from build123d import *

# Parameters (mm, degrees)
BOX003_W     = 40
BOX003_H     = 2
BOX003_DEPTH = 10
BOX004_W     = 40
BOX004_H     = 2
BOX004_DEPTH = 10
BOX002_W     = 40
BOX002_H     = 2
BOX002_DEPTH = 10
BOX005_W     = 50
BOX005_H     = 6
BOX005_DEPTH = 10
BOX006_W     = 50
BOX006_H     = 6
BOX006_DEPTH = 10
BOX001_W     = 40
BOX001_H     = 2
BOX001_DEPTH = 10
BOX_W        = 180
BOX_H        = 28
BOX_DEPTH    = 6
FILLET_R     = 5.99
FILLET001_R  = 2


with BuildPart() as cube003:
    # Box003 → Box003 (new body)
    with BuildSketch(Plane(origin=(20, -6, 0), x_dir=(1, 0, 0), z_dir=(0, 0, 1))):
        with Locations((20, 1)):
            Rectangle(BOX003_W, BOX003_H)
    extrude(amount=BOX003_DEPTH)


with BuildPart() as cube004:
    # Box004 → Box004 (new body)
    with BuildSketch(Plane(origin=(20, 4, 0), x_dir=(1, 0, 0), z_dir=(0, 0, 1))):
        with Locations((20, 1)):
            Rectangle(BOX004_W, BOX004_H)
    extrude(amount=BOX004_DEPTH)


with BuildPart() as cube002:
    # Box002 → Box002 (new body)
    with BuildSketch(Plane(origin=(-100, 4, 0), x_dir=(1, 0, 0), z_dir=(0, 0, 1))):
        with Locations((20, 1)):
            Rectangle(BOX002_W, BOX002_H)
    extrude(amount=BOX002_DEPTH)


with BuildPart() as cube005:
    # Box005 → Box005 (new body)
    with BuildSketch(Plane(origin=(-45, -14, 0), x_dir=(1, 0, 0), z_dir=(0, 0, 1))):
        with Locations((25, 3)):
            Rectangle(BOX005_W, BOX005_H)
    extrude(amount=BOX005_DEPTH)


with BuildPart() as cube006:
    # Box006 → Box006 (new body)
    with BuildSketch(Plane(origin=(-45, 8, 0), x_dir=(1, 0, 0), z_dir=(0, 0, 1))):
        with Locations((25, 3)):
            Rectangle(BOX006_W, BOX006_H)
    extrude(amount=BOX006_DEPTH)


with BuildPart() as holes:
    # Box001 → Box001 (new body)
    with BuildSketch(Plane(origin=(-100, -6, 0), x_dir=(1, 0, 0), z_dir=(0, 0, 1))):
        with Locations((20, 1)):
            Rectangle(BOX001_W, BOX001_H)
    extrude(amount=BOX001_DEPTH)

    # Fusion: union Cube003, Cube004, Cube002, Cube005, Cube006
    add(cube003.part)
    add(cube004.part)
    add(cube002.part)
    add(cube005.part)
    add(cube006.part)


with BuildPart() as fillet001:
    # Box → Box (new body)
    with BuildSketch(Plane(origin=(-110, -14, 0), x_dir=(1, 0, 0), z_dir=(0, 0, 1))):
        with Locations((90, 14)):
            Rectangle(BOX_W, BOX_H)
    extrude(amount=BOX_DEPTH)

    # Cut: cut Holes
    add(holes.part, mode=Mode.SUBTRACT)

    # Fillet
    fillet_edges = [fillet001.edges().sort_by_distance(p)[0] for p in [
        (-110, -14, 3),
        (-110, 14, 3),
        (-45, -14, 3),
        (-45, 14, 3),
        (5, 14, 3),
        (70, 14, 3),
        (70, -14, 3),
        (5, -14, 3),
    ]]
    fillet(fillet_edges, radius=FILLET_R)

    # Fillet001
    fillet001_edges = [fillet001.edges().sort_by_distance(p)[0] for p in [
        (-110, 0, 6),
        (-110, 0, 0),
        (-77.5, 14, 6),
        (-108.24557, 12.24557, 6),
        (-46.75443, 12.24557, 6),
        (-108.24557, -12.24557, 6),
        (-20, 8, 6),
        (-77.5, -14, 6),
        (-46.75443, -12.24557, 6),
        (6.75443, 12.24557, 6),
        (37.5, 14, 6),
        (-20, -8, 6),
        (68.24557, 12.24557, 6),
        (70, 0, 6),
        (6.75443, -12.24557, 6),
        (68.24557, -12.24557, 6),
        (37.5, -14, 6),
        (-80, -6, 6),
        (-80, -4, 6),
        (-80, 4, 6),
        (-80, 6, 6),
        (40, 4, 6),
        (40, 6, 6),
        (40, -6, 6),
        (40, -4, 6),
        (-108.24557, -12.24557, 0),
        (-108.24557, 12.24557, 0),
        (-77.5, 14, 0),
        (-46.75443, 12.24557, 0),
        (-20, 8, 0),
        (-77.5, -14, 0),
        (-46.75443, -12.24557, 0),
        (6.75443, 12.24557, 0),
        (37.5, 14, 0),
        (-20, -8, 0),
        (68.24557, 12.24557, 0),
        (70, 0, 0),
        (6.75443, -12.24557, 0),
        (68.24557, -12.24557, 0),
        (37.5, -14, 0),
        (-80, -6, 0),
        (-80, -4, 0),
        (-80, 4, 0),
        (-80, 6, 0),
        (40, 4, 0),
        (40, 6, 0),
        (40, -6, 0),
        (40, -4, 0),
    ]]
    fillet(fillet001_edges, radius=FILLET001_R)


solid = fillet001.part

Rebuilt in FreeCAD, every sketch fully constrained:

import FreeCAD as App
import Part
import Sketcher

V = App.Vector


def edges_at(feature, points):
    """Names of the edges that pass closest to the given points."""
    edges = feature.Shape.Edges
    near = lambda p: min(range(len(edges)), key=lambda i: edges[i].distToShape(Part.Vertex(*p))[0])
    return sorted({f"Edge{near(p) + 1}" for p in points})


def add_polygon(sketch, points):
    """Adds a closed chain of lines whose ends are joined by coincident constraints."""
    first, n = sketch.GeometryCount, len(points)
    for a, b in zip(points, points[1:] + points[:1]):
        sketch.addGeometry(Part.LineSegment(App.Vector(*a, 0), App.Vector(*b, 0)), False)
    for i in range(n):
        sketch.addConstraint(Sketcher.Constraint("Coincident", first + i, 2, first + (i + 1) % n, 1))

doc = App.newDocument("Part")
body = doc.addObject("PartDesign::Body", "Body")

# Sketch on XY plane
sketch1 = body.newObject("Sketcher::SketchObject", "Sketch")
sketch1.AttachmentSupport = (doc.getObject("XY_Plane"), [""])
sketch1.MapMode = "FlatFace"
add_polygon(sketch1, [(20, -4), (20, -6), (60, -6), (60, -4)])  # lines 0-3
sketch1.addConstraint(Sketcher.Constraint("Vertical", 0))
sketch1.addConstraint(Sketcher.Constraint("Horizontal", 1))
sketch1.addConstraint(Sketcher.Constraint("Vertical", 2))
sketch1.addConstraint(Sketcher.Constraint("Horizontal", 3))
sketch1.addConstraint(Sketcher.Constraint("DistanceX", 1, 1, 1, 2, 40.0))
sketch1.addConstraint(Sketcher.Constraint("DistanceY", 0, 2, 0, 1, 2.0))
sketch1.addConstraint(Sketcher.Constraint("DistanceX", -1, 1, 0, 2, 20.0))
sketch1.addConstraint(Sketcher.Constraint("DistanceY", 0, 2, -1, 1, 6.0))
pad1 = body.newObject("PartDesign::Pad", "Pad")
pad1.Profile = sketch1
pad1.Length = 10
body2 = doc.addObject("PartDesign::Body", "Body001")

# Sketch on XY plane
sketch2 = body2.newObject("Sketcher::SketchObject", "Sketch001")
sketch2.AttachmentSupport = (doc.getObject("XY_Plane001"), [""])
sketch2.MapMode = "FlatFace"
add_polygon(sketch2, [(20, 6), (20, 4), (60, 4), (60, 6)])  # lines 0-3
sketch2.addConstraint(Sketcher.Constraint("Vertical", 0))
sketch2.addConstraint(Sketcher.Constraint("Horizontal", 1))
sketch2.addConstraint(Sketcher.Constraint("Vertical", 2))
sketch2.addConstraint(Sketcher.Constraint("Horizontal", 3))
sketch2.addConstraint(Sketcher.Constraint("DistanceX", 1, 1, 1, 2, 40.0))
sketch2.addConstraint(Sketcher.Constraint("DistanceY", 0, 2, 0, 1, 2.0))
sketch2.addConstraint(Sketcher.Constraint("DistanceX", -1, 1, 0, 2, 20.0))
sketch2.addConstraint(Sketcher.Constraint("DistanceY", -1, 1, 0, 2, 4.0))
pad2 = body2.newObject("PartDesign::Pad", "Pad001")
pad2.Profile = sketch2
pad2.Length = 10
body3 = doc.addObject("PartDesign::Body", "Body002")

# Sketch on XY plane
sketch3 = body3.newObject("Sketcher::SketchObject", "Sketch002")
sketch3.AttachmentSupport = (doc.getObject("XY_Plane002"), [""])
sketch3.MapMode = "FlatFace"
add_polygon(sketch3, [(-100, 6), (-100, 4), (-60, 4), (-60, 6)])  # lines 0-3
sketch3.addConstraint(Sketcher.Constraint("Vertical", 0))
sketch3.addConstraint(Sketcher.Constraint("Horizontal", 1))
sketch3.addConstraint(Sketcher.Constraint("Vertical", 2))
sketch3.addConstraint(Sketcher.Constraint("Horizontal", 3))
sketch3.addConstraint(Sketcher.Constraint("DistanceX", 1, 1, 1, 2, 40.0))
sketch3.addConstraint(Sketcher.Constraint("DistanceY", 0, 2, 0, 1, 2.0))
sketch3.addConstraint(Sketcher.Constraint("DistanceX", 0, 2, -1, 1, 100.0))
sketch3.addConstraint(Sketcher.Constraint("DistanceY", -1, 1, 0, 2, 4.0))
pad3 = body3.newObject("PartDesign::Pad", "Pad002")
pad3.Profile = sketch3
pad3.Length = 10
body4 = doc.addObject("PartDesign::Body", "Body003")

# Sketch on XY plane
sketch4 = body4.newObject("Sketcher::SketchObject", "Sketch003")
sketch4.AttachmentSupport = (doc.getObject("XY_Plane003"), [""])
sketch4.MapMode = "FlatFace"
add_polygon(sketch4, [(-45, -8), (-45, -14), (5, -14), (5, -8)])  # lines 0-3
sketch4.addConstraint(Sketcher.Constraint("Vertical", 0))
sketch4.addConstraint(Sketcher.Constraint("Horizontal", 1))
sketch4.addConstraint(Sketcher.Constraint("Vertical", 2))
sketch4.addConstraint(Sketcher.Constraint("Horizontal", 3))
sketch4.addConstraint(Sketcher.Constraint("DistanceX", 1, 1, 1, 2, 50.0))
sketch4.addConstraint(Sketcher.Constraint("DistanceY", 0, 2, 0, 1, 6.0))
sketch4.addConstraint(Sketcher.Constraint("DistanceX", 0, 2, -1, 1, 45.0))
sketch4.addConstraint(Sketcher.Constraint("DistanceY", 0, 2, -1, 1, 14.0))
pad4 = body4.newObject("PartDesign::Pad", "Pad003")
pad4.Profile = sketch4
pad4.Length = 10
body5 = doc.addObject("PartDesign::Body", "Body004")

# Sketch on XY plane
sketch5 = body5.newObject("Sketcher::SketchObject", "Sketch004")
sketch5.AttachmentSupport = (doc.getObject("XY_Plane004"), [""])
sketch5.MapMode = "FlatFace"
add_polygon(sketch5, [(-45, 14), (-45, 8), (5, 8), (5, 14)])  # lines 0-3
sketch5.addConstraint(Sketcher.Constraint("Vertical", 0))
sketch5.addConstraint(Sketcher.Constraint("Horizontal", 1))
sketch5.addConstraint(Sketcher.Constraint("Vertical", 2))
sketch5.addConstraint(Sketcher.Constraint("Horizontal", 3))
sketch5.addConstraint(Sketcher.Constraint("DistanceX", 1, 1, 1, 2, 50.0))
sketch5.addConstraint(Sketcher.Constraint("DistanceY", 0, 2, 0, 1, 6.0))
sketch5.addConstraint(Sketcher.Constraint("DistanceX", 0, 2, -1, 1, 45.0))
sketch5.addConstraint(Sketcher.Constraint("DistanceY", -1, 1, 0, 2, 8.0))
pad5 = body5.newObject("PartDesign::Pad", "Pad004")
pad5.Profile = sketch5
pad5.Length = 10
body6 = doc.addObject("PartDesign::Body", "Body005")
body6.AllowCompound = True

# Sketch on XY plane
sketch6 = body6.newObject("Sketcher::SketchObject", "Sketch005")
sketch6.AttachmentSupport = (doc.getObject("XY_Plane005"), [""])
sketch6.MapMode = "FlatFace"
add_polygon(sketch6, [(-100, -4), (-100, -6), (-60, -6), (-60, -4)])  # lines 0-3
sketch6.addConstraint(Sketcher.Constraint("Vertical", 0))
sketch6.addConstraint(Sketcher.Constraint("Horizontal", 1))
sketch6.addConstraint(Sketcher.Constraint("Vertical", 2))
sketch6.addConstraint(Sketcher.Constraint("Horizontal", 3))
sketch6.addConstraint(Sketcher.Constraint("DistanceX", 1, 1, 1, 2, 40.0))
sketch6.addConstraint(Sketcher.Constraint("DistanceY", 0, 2, 0, 1, 2.0))
sketch6.addConstraint(Sketcher.Constraint("DistanceX", 0, 2, -1, 1, 100.0))
sketch6.addConstraint(Sketcher.Constraint("DistanceY", 0, 2, -1, 1, 6.0))
pad6 = body6.newObject("PartDesign::Pad", "Pad005")
pad6.Profile = sketch6
pad6.Length = 10
doc.recompute()

boolean = body6.newObject("PartDesign::Boolean", "Boolean")
boolean.Type = "Fuse"
boolean.addObjects([body])
doc.recompute()

boolean2 = body6.newObject("PartDesign::Boolean", "Boolean001")
boolean2.Type = "Fuse"
boolean2.addObjects([body2])
doc.recompute()

boolean3 = body6.newObject("PartDesign::Boolean", "Boolean002")
boolean3.Type = "Fuse"
boolean3.addObjects([body3])
doc.recompute()

boolean4 = body6.newObject("PartDesign::Boolean", "Boolean003")
boolean4.Type = "Fuse"
boolean4.addObjects([body4])
doc.recompute()

boolean5 = body6.newObject("PartDesign::Boolean", "Boolean004")
boolean5.Type = "Fuse"
boolean5.addObjects([body5])
body7 = doc.addObject("PartDesign::Body", "Body006")

# Sketch on XY plane
sketch7 = body7.newObject("Sketcher::SketchObject", "Sketch006")
sketch7.AttachmentSupport = (doc.getObject("XY_Plane006"), [""])
sketch7.MapMode = "FlatFace"
add_polygon(sketch7, [(-110, 14), (-110, -14), (70, -14), (70, 14)])  # lines 0-3
sketch7.addConstraint(Sketcher.Constraint("Vertical", 0))
sketch7.addConstraint(Sketcher.Constraint("Horizontal", 1))
sketch7.addConstraint(Sketcher.Constraint("Vertical", 2))
sketch7.addConstraint(Sketcher.Constraint("Horizontal", 3))
sketch7.addConstraint(Sketcher.Constraint("DistanceX", 1, 1, 1, 2, 180.0))
sketch7.addConstraint(Sketcher.Constraint("DistanceY", 0, 2, 0, 1, 28.0))
sketch7.addConstraint(Sketcher.Constraint("DistanceX", 0, 2, -1, 1, 110.0))
sketch7.addConstraint(Sketcher.Constraint("DistanceY", 0, 2, -1, 1, 14.0))
pad7 = body7.newObject("PartDesign::Pad", "Pad006")
pad7.Profile = sketch7
pad7.Length = 6
doc.recompute()

boolean6 = body7.newObject("PartDesign::Boolean", "Boolean005")
boolean6.Type = "Cut"
boolean6.addObjects([body6])
doc.recompute()

fillet = body7.newObject("PartDesign::Fillet", "Fillet")
fillet.Base = (boolean6, edges_at(boolean6, [
    (-110, -14, 3),
    (-110, 14, 3),
    (-45, -14, 3),
    (-45, 14, 3),
    (5, 14, 3),
    (70, 14, 3),
    (70, -14, 3),
    (5, -14, 3),
]))
fillet.Radius = 5.99
doc.recompute()

fillet2 = body7.newObject("PartDesign::Fillet", "Fillet001")
fillet2.Base = (fillet, edges_at(fillet, [
    (-110, 0, 6),
    (-110, 0, 0),
    (-77.5, 14, 6),
    (-108.246, 12.246, 6),
    (-46.754, 12.246, 6),
    (-108.246, -12.246, 6),
    (-20, 8, 6),
    (-77.5, -14, 6),
    (-46.754, -12.246, 6),
    (6.754, 12.246, 6),
    (37.5, 14, 6),
    (-20, -8, 6),
    (68.246, 12.246, 6),
    (70, 0, 6),
    (6.754, -12.246, 6),
    (68.246, -12.246, 6),
    (37.5, -14, 6),
    (-80, -6, 6),
    (-80, -4, 6),
    (-80, 4, 6),
    (-80, 6, 6),
    (40, 4, 6),
    (40, 6, 6),
    (40, -6, 6),
    (40, -4, 6),
    (-108.246, -12.246, 0),
    (-108.246, 12.246, 0),
    (-77.5, 14, 0),
    (-46.754, 12.246, 0),
    (-20, 8, 0),
    (-77.5, -14, 0),
    (-46.754, -12.246, 0),
    (6.754, 12.246, 0),
    (37.5, 14, 0),
    (-20, -8, 0),
    (68.246, 12.246, 0),
    (70, 0, 0),
    (6.754, -12.246, 0),
    (68.246, -12.246, 0),
    (37.5, -14, 0),
    (-80, -6, 0),
    (-80, -4, 0),
    (-80, 4, 0),
    (-80, 6, 0),
    (40, 4, 0),
    (40, 6, 0),
    (40, -6, 0),
    (40, -4, 0),
]))
fillet2.Radius = 2

doc.recompute()
